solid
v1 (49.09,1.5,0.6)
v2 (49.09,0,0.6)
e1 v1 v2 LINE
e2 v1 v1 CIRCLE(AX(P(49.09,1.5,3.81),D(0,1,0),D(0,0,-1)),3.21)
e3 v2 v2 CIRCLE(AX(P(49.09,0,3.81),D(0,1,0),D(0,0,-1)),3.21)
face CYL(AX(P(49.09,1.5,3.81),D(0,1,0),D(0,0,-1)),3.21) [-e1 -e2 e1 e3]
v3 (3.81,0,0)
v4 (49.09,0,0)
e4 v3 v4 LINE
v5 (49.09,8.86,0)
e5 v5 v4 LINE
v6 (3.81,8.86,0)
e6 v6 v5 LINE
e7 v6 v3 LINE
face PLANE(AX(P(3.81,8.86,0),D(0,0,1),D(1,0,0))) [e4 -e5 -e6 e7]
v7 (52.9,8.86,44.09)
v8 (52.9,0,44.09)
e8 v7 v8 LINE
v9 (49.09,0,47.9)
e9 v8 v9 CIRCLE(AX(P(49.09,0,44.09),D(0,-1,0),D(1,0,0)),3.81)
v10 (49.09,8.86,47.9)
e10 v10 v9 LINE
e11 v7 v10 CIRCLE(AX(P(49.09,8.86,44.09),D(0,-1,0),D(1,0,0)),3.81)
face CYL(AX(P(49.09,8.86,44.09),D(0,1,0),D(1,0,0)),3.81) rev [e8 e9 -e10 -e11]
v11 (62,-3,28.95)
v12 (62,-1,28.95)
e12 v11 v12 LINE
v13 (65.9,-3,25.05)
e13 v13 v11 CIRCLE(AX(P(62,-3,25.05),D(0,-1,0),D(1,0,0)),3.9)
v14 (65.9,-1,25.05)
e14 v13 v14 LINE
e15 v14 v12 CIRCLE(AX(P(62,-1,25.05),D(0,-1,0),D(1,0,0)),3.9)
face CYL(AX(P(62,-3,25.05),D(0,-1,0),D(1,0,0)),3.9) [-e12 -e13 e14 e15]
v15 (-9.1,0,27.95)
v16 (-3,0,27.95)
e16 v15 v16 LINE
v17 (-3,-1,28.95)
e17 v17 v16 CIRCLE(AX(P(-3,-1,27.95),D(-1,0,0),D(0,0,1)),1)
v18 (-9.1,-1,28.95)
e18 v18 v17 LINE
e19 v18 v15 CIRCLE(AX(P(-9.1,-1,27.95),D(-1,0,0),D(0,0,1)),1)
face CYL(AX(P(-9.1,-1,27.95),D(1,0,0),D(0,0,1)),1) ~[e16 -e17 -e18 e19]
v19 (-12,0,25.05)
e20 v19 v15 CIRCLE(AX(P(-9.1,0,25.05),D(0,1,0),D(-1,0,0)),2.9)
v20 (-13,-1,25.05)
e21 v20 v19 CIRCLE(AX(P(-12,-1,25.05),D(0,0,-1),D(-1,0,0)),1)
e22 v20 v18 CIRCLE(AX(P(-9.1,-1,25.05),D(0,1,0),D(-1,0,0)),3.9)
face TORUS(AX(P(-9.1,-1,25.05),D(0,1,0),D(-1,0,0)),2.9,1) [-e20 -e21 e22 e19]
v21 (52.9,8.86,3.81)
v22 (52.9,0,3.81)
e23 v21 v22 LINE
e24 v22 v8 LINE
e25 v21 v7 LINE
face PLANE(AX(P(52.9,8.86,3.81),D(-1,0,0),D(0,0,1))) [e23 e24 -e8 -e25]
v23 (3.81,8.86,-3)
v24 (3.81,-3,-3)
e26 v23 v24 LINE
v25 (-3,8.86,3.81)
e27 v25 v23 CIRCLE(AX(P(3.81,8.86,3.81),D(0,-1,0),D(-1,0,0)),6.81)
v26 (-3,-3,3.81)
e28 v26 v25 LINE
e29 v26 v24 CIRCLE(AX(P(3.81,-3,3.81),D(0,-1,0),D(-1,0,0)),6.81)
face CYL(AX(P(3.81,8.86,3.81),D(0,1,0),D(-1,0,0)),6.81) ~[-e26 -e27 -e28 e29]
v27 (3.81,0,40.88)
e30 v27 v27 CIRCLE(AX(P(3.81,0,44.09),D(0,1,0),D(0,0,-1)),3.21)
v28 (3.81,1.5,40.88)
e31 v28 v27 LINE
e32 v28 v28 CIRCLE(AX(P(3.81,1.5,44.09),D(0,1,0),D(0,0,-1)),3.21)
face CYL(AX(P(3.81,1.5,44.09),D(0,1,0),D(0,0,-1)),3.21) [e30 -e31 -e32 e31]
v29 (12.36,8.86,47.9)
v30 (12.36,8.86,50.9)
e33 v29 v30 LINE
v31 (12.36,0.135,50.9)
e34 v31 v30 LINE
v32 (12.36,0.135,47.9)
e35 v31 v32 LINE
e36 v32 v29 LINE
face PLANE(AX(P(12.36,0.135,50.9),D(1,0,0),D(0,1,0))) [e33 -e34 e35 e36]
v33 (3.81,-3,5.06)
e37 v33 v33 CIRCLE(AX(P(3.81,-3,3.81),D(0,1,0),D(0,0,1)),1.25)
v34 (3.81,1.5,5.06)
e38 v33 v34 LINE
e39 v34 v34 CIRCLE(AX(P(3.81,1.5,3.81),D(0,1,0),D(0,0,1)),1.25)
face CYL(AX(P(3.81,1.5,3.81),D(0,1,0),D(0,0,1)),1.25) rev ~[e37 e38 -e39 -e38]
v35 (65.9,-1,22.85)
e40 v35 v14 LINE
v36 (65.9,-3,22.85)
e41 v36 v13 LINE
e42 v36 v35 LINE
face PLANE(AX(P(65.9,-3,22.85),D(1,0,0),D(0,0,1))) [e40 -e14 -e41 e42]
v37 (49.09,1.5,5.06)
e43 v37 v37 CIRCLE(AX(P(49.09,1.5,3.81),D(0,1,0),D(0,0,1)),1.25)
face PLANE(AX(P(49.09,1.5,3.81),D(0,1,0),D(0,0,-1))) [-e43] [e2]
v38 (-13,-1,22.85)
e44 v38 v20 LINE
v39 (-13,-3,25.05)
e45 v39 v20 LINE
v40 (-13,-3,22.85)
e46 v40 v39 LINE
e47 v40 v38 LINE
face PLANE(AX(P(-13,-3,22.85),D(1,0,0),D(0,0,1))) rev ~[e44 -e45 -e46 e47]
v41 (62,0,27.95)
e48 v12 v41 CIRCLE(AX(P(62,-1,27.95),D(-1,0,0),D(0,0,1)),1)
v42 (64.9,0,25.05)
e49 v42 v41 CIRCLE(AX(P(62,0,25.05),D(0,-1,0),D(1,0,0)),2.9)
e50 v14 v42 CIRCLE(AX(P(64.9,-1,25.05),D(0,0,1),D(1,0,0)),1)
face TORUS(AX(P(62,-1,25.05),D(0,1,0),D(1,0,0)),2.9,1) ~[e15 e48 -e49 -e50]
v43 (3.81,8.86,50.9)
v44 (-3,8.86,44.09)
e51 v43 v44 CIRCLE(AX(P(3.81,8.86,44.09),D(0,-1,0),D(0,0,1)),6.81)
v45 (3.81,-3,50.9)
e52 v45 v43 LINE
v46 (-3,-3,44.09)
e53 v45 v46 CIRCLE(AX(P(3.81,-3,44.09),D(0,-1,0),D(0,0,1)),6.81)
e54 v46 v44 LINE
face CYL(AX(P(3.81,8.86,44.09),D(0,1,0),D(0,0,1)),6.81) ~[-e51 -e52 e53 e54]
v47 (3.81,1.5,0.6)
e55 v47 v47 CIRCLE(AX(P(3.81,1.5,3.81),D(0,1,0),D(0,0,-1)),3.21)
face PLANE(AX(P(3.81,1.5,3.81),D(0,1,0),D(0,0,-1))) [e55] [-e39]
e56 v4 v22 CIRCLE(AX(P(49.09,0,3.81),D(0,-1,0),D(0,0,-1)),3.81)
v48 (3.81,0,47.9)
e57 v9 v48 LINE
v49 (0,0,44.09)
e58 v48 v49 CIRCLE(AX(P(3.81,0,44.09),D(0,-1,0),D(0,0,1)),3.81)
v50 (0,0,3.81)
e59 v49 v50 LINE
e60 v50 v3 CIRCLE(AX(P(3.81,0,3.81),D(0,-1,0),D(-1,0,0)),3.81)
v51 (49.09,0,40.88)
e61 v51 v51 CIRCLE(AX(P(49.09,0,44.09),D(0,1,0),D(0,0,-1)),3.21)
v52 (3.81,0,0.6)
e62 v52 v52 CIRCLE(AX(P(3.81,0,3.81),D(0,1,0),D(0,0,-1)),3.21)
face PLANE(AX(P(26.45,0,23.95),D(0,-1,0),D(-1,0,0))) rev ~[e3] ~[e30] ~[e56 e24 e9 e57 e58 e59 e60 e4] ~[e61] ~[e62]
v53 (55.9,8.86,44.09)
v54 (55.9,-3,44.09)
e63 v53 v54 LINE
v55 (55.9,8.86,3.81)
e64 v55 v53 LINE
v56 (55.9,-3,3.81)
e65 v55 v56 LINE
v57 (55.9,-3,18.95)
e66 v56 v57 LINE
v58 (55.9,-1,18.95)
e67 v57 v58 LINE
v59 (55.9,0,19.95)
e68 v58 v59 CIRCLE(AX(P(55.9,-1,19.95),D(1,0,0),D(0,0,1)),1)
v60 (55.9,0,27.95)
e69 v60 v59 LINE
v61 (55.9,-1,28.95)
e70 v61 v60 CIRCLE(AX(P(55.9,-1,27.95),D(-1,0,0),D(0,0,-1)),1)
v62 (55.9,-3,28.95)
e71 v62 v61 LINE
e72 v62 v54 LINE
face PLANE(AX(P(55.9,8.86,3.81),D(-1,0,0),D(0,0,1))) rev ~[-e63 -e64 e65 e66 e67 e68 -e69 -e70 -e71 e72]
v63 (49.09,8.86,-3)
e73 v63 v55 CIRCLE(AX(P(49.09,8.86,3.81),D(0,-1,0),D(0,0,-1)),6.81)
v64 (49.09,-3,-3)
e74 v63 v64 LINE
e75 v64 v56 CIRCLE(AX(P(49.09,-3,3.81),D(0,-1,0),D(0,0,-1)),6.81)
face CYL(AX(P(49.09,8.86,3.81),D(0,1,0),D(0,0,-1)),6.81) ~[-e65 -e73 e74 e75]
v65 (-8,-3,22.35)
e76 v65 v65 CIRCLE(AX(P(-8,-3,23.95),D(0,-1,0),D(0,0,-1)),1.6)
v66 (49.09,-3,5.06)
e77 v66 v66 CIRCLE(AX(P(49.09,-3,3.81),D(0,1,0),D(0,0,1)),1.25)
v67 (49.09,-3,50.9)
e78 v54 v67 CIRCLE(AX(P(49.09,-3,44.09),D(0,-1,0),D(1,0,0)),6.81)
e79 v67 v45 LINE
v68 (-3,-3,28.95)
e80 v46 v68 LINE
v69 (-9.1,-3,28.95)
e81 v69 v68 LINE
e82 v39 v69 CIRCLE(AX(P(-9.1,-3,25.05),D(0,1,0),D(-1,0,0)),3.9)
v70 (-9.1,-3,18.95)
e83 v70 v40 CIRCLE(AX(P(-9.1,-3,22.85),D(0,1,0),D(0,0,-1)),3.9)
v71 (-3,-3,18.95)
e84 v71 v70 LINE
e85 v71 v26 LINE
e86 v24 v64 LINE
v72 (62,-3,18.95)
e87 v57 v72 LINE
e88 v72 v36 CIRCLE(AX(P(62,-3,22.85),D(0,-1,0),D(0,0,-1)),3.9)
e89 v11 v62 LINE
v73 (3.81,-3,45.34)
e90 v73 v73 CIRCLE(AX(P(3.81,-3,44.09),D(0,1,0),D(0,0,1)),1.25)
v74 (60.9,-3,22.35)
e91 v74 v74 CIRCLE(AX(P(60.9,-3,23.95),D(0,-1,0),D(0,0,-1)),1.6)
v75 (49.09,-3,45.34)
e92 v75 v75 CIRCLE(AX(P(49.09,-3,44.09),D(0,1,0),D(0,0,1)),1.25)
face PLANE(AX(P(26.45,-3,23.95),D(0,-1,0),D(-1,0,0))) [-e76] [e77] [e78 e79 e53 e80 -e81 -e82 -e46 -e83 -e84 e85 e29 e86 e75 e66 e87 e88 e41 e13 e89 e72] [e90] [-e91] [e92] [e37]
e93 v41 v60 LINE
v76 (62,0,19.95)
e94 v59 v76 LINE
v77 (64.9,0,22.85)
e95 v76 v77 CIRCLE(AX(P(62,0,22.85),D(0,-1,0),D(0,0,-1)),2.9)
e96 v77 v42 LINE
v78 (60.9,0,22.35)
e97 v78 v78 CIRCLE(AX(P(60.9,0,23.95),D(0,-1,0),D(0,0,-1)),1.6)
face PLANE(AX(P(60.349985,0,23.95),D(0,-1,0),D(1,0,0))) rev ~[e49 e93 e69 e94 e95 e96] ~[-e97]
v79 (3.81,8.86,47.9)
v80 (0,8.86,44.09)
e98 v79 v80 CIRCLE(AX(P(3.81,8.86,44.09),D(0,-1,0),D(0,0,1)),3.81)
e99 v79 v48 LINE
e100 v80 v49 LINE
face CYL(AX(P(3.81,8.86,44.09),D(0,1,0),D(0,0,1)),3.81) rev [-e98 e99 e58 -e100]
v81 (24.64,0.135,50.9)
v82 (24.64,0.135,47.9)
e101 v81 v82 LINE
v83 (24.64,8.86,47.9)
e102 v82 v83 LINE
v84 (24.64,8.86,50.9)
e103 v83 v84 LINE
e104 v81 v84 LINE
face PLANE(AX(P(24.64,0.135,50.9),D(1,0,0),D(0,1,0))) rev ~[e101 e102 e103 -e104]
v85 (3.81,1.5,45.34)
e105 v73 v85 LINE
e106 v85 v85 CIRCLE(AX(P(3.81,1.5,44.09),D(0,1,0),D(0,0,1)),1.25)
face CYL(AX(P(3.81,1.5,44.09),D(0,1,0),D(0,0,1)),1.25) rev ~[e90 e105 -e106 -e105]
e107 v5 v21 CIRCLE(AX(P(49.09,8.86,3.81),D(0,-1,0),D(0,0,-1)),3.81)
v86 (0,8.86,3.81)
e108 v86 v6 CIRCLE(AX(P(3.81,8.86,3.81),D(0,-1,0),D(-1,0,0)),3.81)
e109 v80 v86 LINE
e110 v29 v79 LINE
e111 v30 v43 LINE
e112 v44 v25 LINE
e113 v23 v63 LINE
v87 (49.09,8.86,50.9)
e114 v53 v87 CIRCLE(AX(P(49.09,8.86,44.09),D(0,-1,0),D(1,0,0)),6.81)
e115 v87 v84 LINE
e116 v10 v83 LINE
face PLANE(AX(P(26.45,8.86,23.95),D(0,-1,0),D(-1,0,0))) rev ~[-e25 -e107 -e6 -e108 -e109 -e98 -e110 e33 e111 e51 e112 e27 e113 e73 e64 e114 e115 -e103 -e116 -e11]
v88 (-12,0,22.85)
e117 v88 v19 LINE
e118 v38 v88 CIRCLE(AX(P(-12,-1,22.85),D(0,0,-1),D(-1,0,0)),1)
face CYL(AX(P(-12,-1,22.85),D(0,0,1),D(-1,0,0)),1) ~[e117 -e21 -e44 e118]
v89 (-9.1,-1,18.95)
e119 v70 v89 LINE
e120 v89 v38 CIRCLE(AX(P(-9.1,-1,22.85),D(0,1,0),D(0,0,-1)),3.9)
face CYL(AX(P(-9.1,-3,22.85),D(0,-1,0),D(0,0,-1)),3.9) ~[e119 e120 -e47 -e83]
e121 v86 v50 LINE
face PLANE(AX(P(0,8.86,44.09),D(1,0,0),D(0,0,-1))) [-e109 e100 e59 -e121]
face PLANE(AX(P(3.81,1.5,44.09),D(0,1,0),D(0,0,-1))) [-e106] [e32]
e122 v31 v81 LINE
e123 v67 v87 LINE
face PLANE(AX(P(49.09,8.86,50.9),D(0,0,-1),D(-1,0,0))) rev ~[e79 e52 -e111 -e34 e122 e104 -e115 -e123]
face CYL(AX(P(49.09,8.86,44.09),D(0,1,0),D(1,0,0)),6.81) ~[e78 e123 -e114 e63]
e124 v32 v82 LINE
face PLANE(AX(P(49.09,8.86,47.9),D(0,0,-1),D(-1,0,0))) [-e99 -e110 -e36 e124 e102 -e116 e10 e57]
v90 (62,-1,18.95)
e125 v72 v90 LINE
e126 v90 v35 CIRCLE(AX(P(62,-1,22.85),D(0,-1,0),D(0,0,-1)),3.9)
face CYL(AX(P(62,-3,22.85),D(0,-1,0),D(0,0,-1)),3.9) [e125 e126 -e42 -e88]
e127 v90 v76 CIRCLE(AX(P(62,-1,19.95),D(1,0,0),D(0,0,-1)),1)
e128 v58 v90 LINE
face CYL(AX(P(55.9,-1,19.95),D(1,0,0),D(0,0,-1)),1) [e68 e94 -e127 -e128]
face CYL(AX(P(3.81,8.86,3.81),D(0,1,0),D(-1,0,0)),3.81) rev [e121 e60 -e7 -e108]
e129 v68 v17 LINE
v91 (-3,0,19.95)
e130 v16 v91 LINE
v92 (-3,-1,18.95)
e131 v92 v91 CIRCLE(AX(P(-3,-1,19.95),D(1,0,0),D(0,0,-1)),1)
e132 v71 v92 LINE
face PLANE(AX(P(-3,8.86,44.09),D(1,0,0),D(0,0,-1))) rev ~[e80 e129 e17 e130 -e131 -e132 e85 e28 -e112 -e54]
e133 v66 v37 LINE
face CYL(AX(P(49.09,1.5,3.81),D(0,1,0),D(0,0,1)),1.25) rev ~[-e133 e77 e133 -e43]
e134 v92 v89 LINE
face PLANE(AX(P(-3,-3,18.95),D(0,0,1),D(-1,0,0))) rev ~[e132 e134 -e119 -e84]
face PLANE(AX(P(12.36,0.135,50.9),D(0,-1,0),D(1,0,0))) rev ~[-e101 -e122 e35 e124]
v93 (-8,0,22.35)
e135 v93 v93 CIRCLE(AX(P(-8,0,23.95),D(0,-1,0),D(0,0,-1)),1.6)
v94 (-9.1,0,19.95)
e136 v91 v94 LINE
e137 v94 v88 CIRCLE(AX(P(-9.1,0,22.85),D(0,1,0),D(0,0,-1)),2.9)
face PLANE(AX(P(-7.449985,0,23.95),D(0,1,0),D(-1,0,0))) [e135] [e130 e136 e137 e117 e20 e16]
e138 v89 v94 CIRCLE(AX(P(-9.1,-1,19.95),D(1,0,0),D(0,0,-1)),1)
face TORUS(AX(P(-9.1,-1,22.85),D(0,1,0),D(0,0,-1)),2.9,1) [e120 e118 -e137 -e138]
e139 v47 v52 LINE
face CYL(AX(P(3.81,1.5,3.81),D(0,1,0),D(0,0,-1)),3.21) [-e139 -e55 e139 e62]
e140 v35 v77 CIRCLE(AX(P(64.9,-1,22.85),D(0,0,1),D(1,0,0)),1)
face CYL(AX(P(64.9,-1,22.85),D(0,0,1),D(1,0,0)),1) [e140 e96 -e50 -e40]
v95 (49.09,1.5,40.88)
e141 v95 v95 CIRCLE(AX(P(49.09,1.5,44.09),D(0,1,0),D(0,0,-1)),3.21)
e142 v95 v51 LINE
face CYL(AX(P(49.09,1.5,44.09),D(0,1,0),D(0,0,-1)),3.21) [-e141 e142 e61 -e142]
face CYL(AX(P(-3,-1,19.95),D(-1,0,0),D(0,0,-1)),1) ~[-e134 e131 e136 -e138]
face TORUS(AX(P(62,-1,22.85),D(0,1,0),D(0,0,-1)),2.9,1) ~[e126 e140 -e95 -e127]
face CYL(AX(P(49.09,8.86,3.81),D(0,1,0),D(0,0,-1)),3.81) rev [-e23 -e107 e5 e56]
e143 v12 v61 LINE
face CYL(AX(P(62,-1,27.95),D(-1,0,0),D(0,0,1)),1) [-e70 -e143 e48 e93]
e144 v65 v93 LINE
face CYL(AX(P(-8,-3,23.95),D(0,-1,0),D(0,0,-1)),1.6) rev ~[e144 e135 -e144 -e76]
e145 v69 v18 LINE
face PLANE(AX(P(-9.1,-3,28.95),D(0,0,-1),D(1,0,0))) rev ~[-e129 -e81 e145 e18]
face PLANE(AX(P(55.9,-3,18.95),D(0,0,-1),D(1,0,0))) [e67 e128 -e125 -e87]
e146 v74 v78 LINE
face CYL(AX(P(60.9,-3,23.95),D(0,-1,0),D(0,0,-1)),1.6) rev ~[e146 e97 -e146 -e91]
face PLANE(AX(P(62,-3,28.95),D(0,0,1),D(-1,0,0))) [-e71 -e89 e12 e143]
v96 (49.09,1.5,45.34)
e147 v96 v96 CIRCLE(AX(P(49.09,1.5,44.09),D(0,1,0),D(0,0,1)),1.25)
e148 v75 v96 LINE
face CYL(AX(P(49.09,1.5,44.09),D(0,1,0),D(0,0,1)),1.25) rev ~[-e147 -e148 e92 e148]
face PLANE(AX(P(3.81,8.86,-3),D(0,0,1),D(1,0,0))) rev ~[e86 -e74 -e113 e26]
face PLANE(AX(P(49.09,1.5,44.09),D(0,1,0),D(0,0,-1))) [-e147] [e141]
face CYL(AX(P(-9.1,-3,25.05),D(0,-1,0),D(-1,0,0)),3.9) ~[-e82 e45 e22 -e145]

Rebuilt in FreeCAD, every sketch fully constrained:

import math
import FreeCAD as App
import Part
import Sketcher

V = App.Vector
Q = App.Units.Quantity


def edges_at(feature, points):
    """Names of the edges that pass closest to the given points."""
    edges = feature.Shape.Edges
    near = lambda p: min(range(len(edges)), key=lambda i: edges[i].distToShape(Part.Vertex(*p))[0])
    return sorted({f"Edge{near(p) + 1}" for p in points})


def add_polygon(sketch, points):
    """Adds a closed chain of lines whose ends are joined by coincident constraints."""
    first, n = sketch.GeometryCount, len(points)
    for a, b in zip(points, points[1:] + points[:1]):
        sketch.addGeometry(Part.LineSegment(App.Vector(*a, 0), App.Vector(*b, 0)), False)
    for i in range(n):
        sketch.addConstraint(Sketcher.Constraint("Coincident", first + i, 2, first + (i + 1) % n, 1))

doc = App.newDocument("Part")
params = doc.addObject("Spreadsheet::Sheet", "Params")
for row, (alias, value) in enumerate([
    ("sketch1_radius", "6.81 mm"),
    ("sketch1_width", "45.28 mm"),
    ("sketch1_height", "40.28 mm"),
    ("pad1_length", "3 mm"),
    ("sketch2_diameter", "2.5 mm"),
    ("sketch3_diameter", "2.5 mm"),
    ("sketch4_diameter", "2.5 mm"),
    ("sketch5_diameter", "2.5 mm"),
    ("sketch6_radius", "6.81 mm"),
    ("sketch6_radius2", "3.81 mm"),
    ("sketch6_width", "45.28 mm"),
    ("sketch6_height", "40.28 mm"),
    ("pad2_length", "8.86 mm"),
    ("sketch7_diameter", "2.5 mm"),
    ("sketch7_diameter2", "6.42 mm"),
    ("pad3_length", "1.5 mm"),
    ("sketch8_width", "12.28 mm"),
    ("sketch8_height", "8.73 mm"),
    ("pocket5_length", "3 mm"),
    ("sketch9_diameter", "3.2 mm"),
    ("sketch9_radius", "3.9 mm"),
    ("sketch9_height", "10 mm"),
    ("sketch9_width", "6.1 mm"),
    ("pad4_length", "3 mm"),
    ("fillet_radius", "1 mm"),
    ("fillet2_radius", "1 mm"),
], start=1):
    params.set(f"A{row}", alias)
    params.set(f"B{row}", "=" + value)
    params.setAlias(f"B{row}", alias)

body = doc.addObject("PartDesign::Body", "Body")

# Sketch on XZ plane
sketch1 = doc.addObject("Sketcher::SketchObject", "Sketch")
body.addObject(sketch1)
sketch1.AttachmentSupport = (doc.XZ_Plane, [""])
sketch1.MapMode = "FlatFace"
sketch1.addGeometry(Part.LineSegment(V(49.09, -3, 0), V(3.81, -3, 0)), False)
sketch1.addGeometry(Part.ArcOfCircle(Part.Circle(V(3.81, 3.81, 0), V(0, 0, 1), 6.81), math.radians(180), math.radians(270)), False)
sketch1.addGeometry(Part.LineSegment(V(-3, 3.81, 0), V(-3, 44.09, 0)), False)
sketch1.addGeometry(Part.ArcOfCircle(Part.Circle(V(3.81, 44.09, 0), V(0, 0, 1), 6.81), math.radians(90), math.radians(180)), False)
sketch1.addGeometry(Part.LineSegment(V(3.81, 50.9, 0), V(49.09, 50.9, 0)), False)
sketch1.addGeometry(Part.ArcOfCircle(Part.Circle(V(49.09, 44.09, 0), V(0, 0, 1), 6.81), math.radians(0), math.radians(90)), False)
sketch1.addGeometry(Part.LineSegment(V(55.9, 44.09, 0), V(55.9, 3.81, 0)), False)
sketch1.addGeometry(Part.ArcOfCircle(Part.Circle(V(49.09, 3.81, 0), V(0, 0, 1), 6.81), math.radians(-90), math.radians(0)), False)
sketch1.addConstraint(Sketcher.Constraint("Tangent", 0, 2, 1, 2))
sketch1.addConstraint(Sketcher.Constraint("Tangent", 1, 1, 2, 1))
sketch1.addConstraint(Sketcher.Constraint("Tangent", 2, 2, 3, 2))
sketch1.addConstraint(Sketcher.Constraint("Tangent", 3, 1, 4, 1))
sketch1.addConstraint(Sketcher.Constraint("Tangent", 4, 2, 5, 2))
sketch1.addConstraint(Sketcher.Constraint("Tangent", 5, 1, 6, 1))
sketch1.addConstraint(Sketcher.Constraint("Tangent", 6, 2, 7, 2))
sketch1.addConstraint(Sketcher.Constraint("Tangent", 7, 1, 0, 1))
sketch1.addConstraint(Sketcher.Constraint("Horizontal", 0))
sketch1.addConstraint(Sketcher.Constraint("Vertical", 2))
sketch1.addConstraint(Sketcher.Constraint("Horizontal", 4))
sketch1.addConstraint(Sketcher.Constraint("Vertical", 6))
sketch1.addConstraint(Sketcher.Constraint("Equal", 1, 3))
sketch1.addConstraint(Sketcher.Constraint("Equal", 3, 5))
sketch1.addConstraint(Sketcher.Constraint("Equal", 5, 7))
sketch1.addConstraint(Sketcher.Constraint("Radius", 1, Q("6.81 mm")))
sketch1.addConstraint(Sketcher.Constraint("DistanceY", 0, 2, -1, 1, Q("3 mm")))
sketch1.addConstraint(Sketcher.Constraint("DistanceX", 1, 1, -1, 1, Q("3 mm")))
sketch1.addConstraint(Sketcher.Constraint("DistanceX", 0, 2, 0, 1, Q("45.28 mm")))
sketch1.addConstraint(Sketcher.Constraint("DistanceY", 2, 1, 2, 2, Q("40.28 mm")))
sketch1.setExpression("Constraints[15]", "Params.sketch1_radius")
sketch1.setExpression("Constraints[18]", "Params.sketch1_width")
sketch1.setExpression("Constraints[19]", "Params.sketch1_height")
pad1 = doc.addObject("PartDesign::Pad", "Pad")
body.addObject(pad1)
pad1.Profile = sketch1
pad1.setExpression("Length", "Params.pad1_length")

# Sketch on XZ plane
sketch2 = doc.addObject("Sketcher::SketchObject", "Sketch001")
body.addObject(sketch2)
sketch2.AttachmentSupport = (doc.XZ_Plane, [""])
sketch2.MapMode = "FlatFace"
sketch2.addGeometry(Part.Circle(V(3.81, 3.81, 0), V(0, 0, 1), 1.25), False)
sketch2.addConstraint(Sketcher.Constraint("Diameter", 0, Q("2.5 mm")))
sketch2.addConstraint(Sketcher.Constraint("DistanceX", -1, 1, 0, 3, Q("3.81 mm")))
sketch2.addConstraint(Sketcher.Constraint("DistanceY", -1, 1, 0, 3, Q("3.81 mm")))
sketch2.setExpression("Constraints[0]", "Params.sketch2_diameter")
pocket1 = doc.addObject("PartDesign::Pocket", "Pocket")
body.addObject(pocket1)
pocket1.Profile = sketch2
pocket1.Type = "UpToFirst"
pocket1.Reversed = True

# Sketch on XZ plane
sketch3 = doc.addObject("Sketcher::SketchObject", "Sketch002")
body.addObject(sketch3)
sketch3.AttachmentSupport = (doc.XZ_Plane, [""])
sketch3.MapMode = "FlatFace"
sketch3.addGeometry(Part.Circle(V(3.81, 44.09, 0), V(0, 0, 1), 1.25), False)
sketch3.addConstraint(Sketcher.Constraint("Diameter", 0, Q("2.5 mm")))
sketch3.addConstraint(Sketcher.Constraint("DistanceX", -1, 1, 0, 3, Q("3.81 mm")))
sketch3.addConstraint(Sketcher.Constraint("DistanceY", -1, 1, 0, 3, Q("44.09 mm")))
sketch3.setExpression("Constraints[0]", "Params.sketch3_diameter")
pocket2 = doc.addObject("PartDesign::Pocket", "Pocket001")
body.addObject(pocket2)
pocket2.Profile = sketch3
pocket2.Type = "UpToFirst"
pocket2.Reversed = True

# Sketch on XZ plane
sketch4 = doc.addObject("Sketcher::SketchObject", "Sketch003")
body.addObject(sketch4)
sketch4.AttachmentSupport = (doc.XZ_Plane, [""])
sketch4.MapMode = "FlatFace"
sketch4.addGeometry(Part.Circle(V(49.09, 44.09, 0), V(0, 0, 1), 1.25), False)
sketch4.addConstraint(Sketcher.Constraint("Diameter", 0, Q("2.5 mm")))
sketch4.addConstraint(Sketcher.Constraint("DistanceX", -1, 1, 0, 3, Q("49.09 mm")))
sketch4.addConstraint(Sketcher.Constraint("DistanceY", -1, 1, 0, 3, Q("44.09 mm")))
sketch4.setExpression("Constraints[0]", "Params.sketch4_diameter")
pocket3 = doc.addObject("PartDesign::Pocket", "Pocket002")
body.addObject(pocket3)
pocket3.Profile = sketch4
pocket3.Type = "UpToFirst"
pocket3.Reversed = True

# Sketch on XZ plane
sketch5 = doc.addObject("Sketcher::SketchObject", "Sketch004")
body.addObject(sketch5)
sketch5.AttachmentSupport = (doc.XZ_Plane, [""])
sketch5.MapMode = "FlatFace"
sketch5.addGeometry(Part.Circle(V(49.09, 3.81, 0), V(0, 0, 1), 1.25), False)
sketch5.addConstraint(Sketcher.Constraint("Diameter", 0, Q("2.5 mm")))
sketch5.addConstraint(Sketcher.Constraint("DistanceX", -1, 1, 0, 3, Q("49.09 mm")))
sketch5.addConstraint(Sketcher.Constraint("DistanceY", -1, 1, 0, 3, Q("3.81 mm")))
sketch5.setExpression("Constraints[0]", "Params.sketch5_diameter")
pocket4 = doc.addObject("PartDesign::Pocket", "Pocket003")
body.addObject(pocket4)
pocket4.Profile = sketch5
pocket4.Type = "UpToFirst"
pocket4.Reversed = True

# Sketch on XZ plane
sketch6 = doc.addObject("Sketcher::SketchObject", "Sketch005")
body.addObject(sketch6)
sketch6.AttachmentSupport = (doc.XZ_Plane, [""])
sketch6.MapMode = "FlatFace"
sketch6.AttachmentOffset = App.Placement(V(0, 0, -8.86), App.Rotation())
sketch6.addGeometry(Part.ArcOfCircle(Part.Circle(V(3.81, 3.81, 0), V(0, 0, 1), 6.81), math.radians(180), math.radians(270)), False)
sketch6.addGeometry(Part.LineSegment(V(-3, 3.81, 0), V(-3, 44.09, 0)), False)
sketch6.addGeometry(Part.ArcOfCircle(Part.Circle(V(3.81, 44.09, 0), V(0, 0, 1), 6.81), math.radians(90), math.radians(180)), False)
sketch6.addGeometry(Part.LineSegment(V(3.81, 50.9, 0), V(49.09, 50.9, 0)), False)
sketch6.addGeometry(Part.ArcOfCircle(Part.Circle(V(49.09, 44.09, 0), V(0, 0, 1), 6.81), math.radians(0), math.radians(90)), False)
sketch6.addGeometry(Part.LineSegment(V(55.9, 44.09, 0), V(55.9, 3.81, 0)), False)
sketch6.addGeometry(Part.ArcOfCircle(Part.Circle(V(49.09, 3.81, 0), V(0, 0, 1), 6.81), math.radians(-90), math.radians(0)), False)
sketch6.addGeometry(Part.LineSegment(V(49.09, -3, 0), V(3.81, -3, 0)), False)
sketch6.addGeometry(Part.LineSegment(V(52.9, 3.81, 0), V(52.9, 44.09, 0)), False)
sketch6.addGeometry(Part.ArcOfCircle(Part.Circle(V(49.09, 44.09, 0), V(0, 0, 1), 3.81), math.radians(0), math.radians(90)), False)
sketch6.addGeometry(Part.LineSegment(V(49.09, 47.9, 0), V(3.81, 47.9, 0)), False)
sketch6.addGeometry(Part.ArcOfCircle(Part.Circle(V(3.81, 44.09, 0), V(0, 0, 1), 3.81), math.radians(90), math.radians(180)), False)
sketch6.addGeometry(Part.LineSegment(V(0, 44.09, 0), V(0, 3.81, 0)), False)
sketch6.addGeometry(Part.ArcOfCircle(Part.Circle(V(3.81, 3.81, 0), V(0, 0, 1), 3.81), math.radians(-180), math.radians(-90)), False)
sketch6.addGeometry(Part.LineSegment(V(3.81, 0, 0), V(49.09, 0, 0)), False)
sketch6.addGeometry(Part.ArcOfCircle(Part.Circle(V(49.09, 3.81, 0), V(0, 0, 1), 3.81), math.radians(-90), math.radians(0)), False)
sketch6.addConstraint(Sketcher.Constraint("Tangent", 0, 1, 1, 1))
sketch6.addConstraint(Sketcher.Constraint("Tangent", 1, 2, 2, 2))
sketch6.addConstraint(Sketcher.Constraint("Tangent", 2, 1, 3, 1))
sketch6.addConstraint(Sketcher.Constraint("Tangent", 3, 2, 4, 2))
sketch6.addConstraint(Sketcher.Constraint("Tangent", 4, 1, 5, 1))
sketch6.addConstraint(Sketcher.Constraint("Tangent", 5, 2, 6, 2))
sketch6.addConstraint(Sketcher.Constraint("Tangent", 6, 1, 7, 1))
sketch6.addConstraint(Sketcher.Constraint("Tangent", 7, 2, 0, 2))
sketch6.addConstraint(Sketcher.Constraint("Tangent", 8, 2, 9, 1))
sketch6.addConstraint(Sketcher.Constraint("Tangent", 9, 2, 10, 1))
sketch6.addConstraint(Sketcher.Constraint("Tangent", 10, 2, 11, 1))
sketch6.addConstraint(Sketcher.Constraint("Tangent", 11, 2, 12, 1))
sketch6.addConstraint(Sketcher.Constraint("Tangent", 12, 2, 13, 1))
sketch6.addConstraint(Sketcher.Constraint("Tangent", 13, 2, 14, 1))
sketch6.addConstraint(Sketcher.Constraint("Tangent", 14, 2, 15, 1))
sketch6.addConstraint(Sketcher.Constraint("Tangent", 15, 2, 8, 1))
sketch6.addConstraint(Sketcher.Constraint("Vertical", 1))
sketch6.addConstraint(Sketcher.Constraint("Horizontal", 3))
sketch6.addConstraint(Sketcher.Constraint("Vertical", 5))
sketch6.addConstraint(Sketcher.Constraint("Horizontal", 7))
sketch6.addConstraint(Sketcher.Constraint("Vertical", 8))
sketch6.addConstraint(Sketcher.Constraint("Horizontal", 10))
sketch6.addConstraint(Sketcher.Constraint("Vertical", 12))
sketch6.addConstraint(Sketcher.Constraint("Horizontal", 14))
sketch6.addConstraint(Sketcher.Constraint("Coincident", 9, 3, 4, 3))
sketch6.addConstraint(Sketcher.Constraint("Coincident", 11, 3, 2, 3))
sketch6.addConstraint(Sketcher.Constraint("Coincident", 13, 3, 0, 3))
sketch6.addConstraint(Sketcher.Constraint("Equal", 0, 2))
sketch6.addConstraint(Sketcher.Constraint("Equal", 2, 4))
sketch6.addConstraint(Sketcher.Constraint("Equal", 4, 6))
sketch6.addConstraint(Sketcher.Constraint("Equal", 13, 15))
sketch6.addConstraint(Sketcher.Constraint("PointOnObject", 11, 2, -2))
sketch6.addConstraint(Sketcher.Constraint("PointOnObject", 13, 2, -1))
sketch6.addConstraint(Sketcher.Constraint("Radius", 0, Q("6.81 mm")))
sketch6.addConstraint(Sketcher.Constraint("Radius", 9, Q("3.81 mm")))
sketch6.addConstraint(Sketcher.Constraint("DistanceX", 3, 1, 3, 2, Q("45.28 mm")))
sketch6.addConstraint(Sketcher.Constraint("DistanceY", 1, 1, 1, 2, Q("40.28 mm")))
sketch6.setExpression("Constraints[33]", "Params.sketch6_radius")
sketch6.setExpression("Constraints[34]", "Params.sketch6_radius2")
sketch6.setExpression("Constraints[35]", "Params.sketch6_width")
sketch6.setExpression("Constraints[36]", "Params.sketch6_height")
pad2 = doc.addObject("PartDesign::Pad", "Pad001")
body.addObject(pad2)
pad2.Profile = sketch6
pad2.setExpression("Length", "Params.pad2_length")

# Sketch on XZ plane
sketch7 = doc.addObject("Sketcher::SketchObject", "Sketch006")
body.addObject(sketch7)
sketch7.AttachmentSupport = (doc.XZ_Plane, [""])
sketch7.MapMode = "FlatFace"
sketch7.AttachmentOffset = App.Placement(V(0, 0, -1.5), App.Rotation())
sketch7.addGeometry(Part.Circle(V(49.09, 3.81, 0), V(0, 0, 1), 3.21), False)
sketch7.addGeometry(Part.Circle(V(49.09, 3.81, 0), V(0, 0, 1), 1.25), False)
sketch7.addGeometry(Part.Circle(V(49.09, 44.09, 0), V(0, 0, 1), 3.21), False)
sketch7.addGeometry(Part.Circle(V(49.09, 44.09, 0), V(0, 0, 1), 1.25), False)
sketch7.addGeometry(Part.Circle(V(3.81, 44.09, 0), V(0, 0, 1), 3.21), False)
sketch7.addGeometry(Part.Circle(V(3.81, 44.09, 0), V(0, 0, 1), 1.25), False)
sketch7.addGeometry(Part.Circle(V(3.81, 3.81, 0), V(0, 0, 1), 3.21), False)
sketch7.addGeometry(Part.Circle(V(3.81, 3.81, 0), V(0, 0, 1), 1.25), False)
sketch7.addConstraint(Sketcher.Constraint("Coincident", 1, 3, 0, 3))
sketch7.addConstraint(Sketcher.Constraint("Coincident", 3, 3, 2, 3))
sketch7.addConstraint(Sketcher.Constraint("Coincident", 5, 3, 4, 3))
sketch7.addConstraint(Sketcher.Constraint("Coincident", 7, 3, 6, 3))
sketch7.addConstraint(Sketcher.Constraint("Equal", 0, 2))
sketch7.addConstraint(Sketcher.Constraint("Equal", 1, 3))
sketch7.addConstraint(Sketcher.Constraint("Equal", 2, 4))
sketch7.addConstraint(Sketcher.Constraint("Equal", 3, 5))
sketch7.addConstraint(Sketcher.Constraint("Equal", 4, 6))
sketch7.addConstraint(Sketcher.Constraint("Equal", 5, 7))
sketch7.addConstraint(Sketcher.Constraint("Horizontal", 3, 3, 4, 3))
sketch7.addConstraint(Sketcher.Constraint("Horizontal", 1, 3, 6, 3))
sketch7.addConstraint(Sketcher.Constraint("Vertical", 1, 3, 2, 3))
sketch7.addConstraint(Sketcher.Constraint("Vertical", 5, 3, 6, 3))
sketch7.addConstraint(Sketcher.Constraint("Diameter", 1, Q("2.5 mm")))
sketch7.addConstraint(Sketcher.Constraint("Diameter", 0, Q("6.42 mm")))
sketch7.addConstraint(Sketcher.Constraint("DistanceX", -1, 1, 0, 3, Q("49.09 mm")))
sketch7.addConstraint(Sketcher.Constraint("DistanceY", -1, 1, 0, 3, Q("3.81 mm")))
sketch7.addConstraint(Sketcher.Constraint("DistanceY", -1, 1, 2, 3, Q("44.09 mm")))
sketch7.addConstraint(Sketcher.Constraint("DistanceX", -1, 1, 4, 3, Q("3.81 mm")))
sketch7.setExpression("Constraints[14]", "Params.sketch7_diameter")
sketch7.setExpression("Constraints[15]", "Params.sketch7_diameter2")
pad3 = doc.addObject("PartDesign::Pad", "Pad002")
body.addObject(pad3)
pad3.Profile = sketch7
pad3.setExpression("Length", "Params.pad3_length")

# Sketch on XY plane
sketch8 = doc.addObject("Sketcher::SketchObject", "Sketch007")
body.addObject(sketch8)
sketch8.AttachmentSupport = (doc.XY_Plane, [""])
sketch8.MapMode = "FlatFace"
sketch8.AttachmentOffset = App.Placement(V(0, 0, 50.9), App.Rotation())
add_polygon(sketch8, [(12.36, 8.865), (12.36, 0.135), (24.64, 0.135), (24.64, 8.865)])  # lines 0-3
sketch8.addConstraint(Sketcher.Constraint("Vertical", 0))
sketch8.addConstraint(Sketcher.Constraint("Horizontal", 1))
sketch8.addConstraint(Sketcher.Constraint("Vertical", 2))
sketch8.addConstraint(Sketcher.Constraint("Horizontal", 3))
sketch8.addConstraint(Sketcher.Constraint("DistanceX", 1, 1, 1, 2, Q("12.28 mm")))
sketch8.addConstraint(Sketcher.Constraint("DistanceY", 0, 2, 0, 1, Q("8.73 mm")))
sketch8.addConstraint(Sketcher.Constraint("DistanceX", -1, 1, 0, 2, Q("12.36 mm")))
sketch8.addConstraint(Sketcher.Constraint("DistanceY", -1, 1, 0, 2, Q("0.135 mm")))
sketch8.setExpression("Constraints[8]", "Params.sketch8_width")
sketch8.setExpression("Constraints[9]", "Params.sketch8_height")
pocket5 = doc.addObject("PartDesign::Pocket", "Pocket004")
body.addObject(pocket5)
pocket5.Profile = sketch8
pocket5.setExpression("Length", "Params.pocket5_length")

# Sketch on XZ plane
sketch9 = doc.addObject("Sketcher::SketchObject", "Sketch008")
body.addObject(sketch9)
sketch9.AttachmentSupport = (doc.XZ_Plane, [""])
sketch9.MapMode = "FlatFace"
sketch9.AttachmentOffset = App.Placement(V(0, 0, 3), App.Rotation())
sketch9.addGeometry(Part.LineSegment(V(55.9, 18.95, 0), V(62, 18.95, 0)), False)
sketch9.addGeometry(Part.ArcOfCircle(Part.Circle(V(62, 22.85, 0), V(0, 0, 1), 3.9), math.radians(-90), math.radians(0)), False)
sketch9.addGeometry(Part.LineSegment(V(65.9, 22.85, 0), V(65.9, 25.05, 0)), False)
sketch9.addGeometry(Part.ArcOfCircle(Part.Circle(V(62, 25.05, 0), V(0, 0, 1), 3.9), math.radians(0), math.radians(90)), False)
sketch9.addGeometry(Part.LineSegment(V(62, 28.95, 0), V(55.9, 28.95, 0)), False)
sketch9.addGeometry(Part.LineSegment(V(55.9, 28.95, 0), V(55.9, 18.95, 0)), False)
sketch9.addGeometry(Part.Circle(V(60.9, 23.95, 0), V(0, 0, 1), 1.6), False)
sketch9.addGeometry(Part.LineSegment(V(-9.1, 18.95, 0), V(-3, 18.95, 0)), False)
sketch9.addGeometry(Part.LineSegment(V(-3, 18.95, 0), V(-3, 28.95, 0)), False)
sketch9.addGeometry(Part.LineSegment(V(-3, 28.95, 0), V(-9.1, 28.95, 0)), False)
sketch9.addGeometry(Part.ArcOfCircle(Part.Circle(V(-9.1, 25.05, 0), V(0, 0, 1), 3.9), math.radians(90), math.radians(180)), False)
sketch9.addGeometry(Part.LineSegment(V(-13, 25.05, 0), V(-13, 22.85, 0)), False)
sketch9.addGeometry(Part.ArcOfCircle(Part.Circle(V(-9.1, 22.85, 0), V(0, 0, 1), 3.9), math.radians(180), math.radians(270)), False)
sketch9.addGeometry(Part.Circle(V(-8, 23.95, 0), V(0, 0, 1), 1.6), False)
sketch9.addConstraint(Sketcher.Constraint("Tangent", 0, 2, 1, 1))
sketch9.addConstraint(Sketcher.Constraint("Tangent", 1, 2, 2, 1))
sketch9.addConstraint(Sketcher.Constraint("Tangent", 2, 2, 3, 1))
sketch9.addConstraint(Sketcher.Constraint("Tangent", 3, 2, 4, 1))
sketch9.addConstraint(Sketcher.Constraint("Coincident", 4, 2, 5, 1))
sketch9.addConstraint(Sketcher.Constraint("Coincident", 5, 2, 0, 1))
sketch9.addConstraint(Sketcher.Constraint("Coincident", 7, 2, 8, 1))
sketch9.addConstraint(Sketcher.Constraint("Coincident", 8, 2, 9, 1))
sketch9.addConstraint(Sketcher.Constraint("Tangent", 9, 2, 10, 1))
sketch9.addConstraint(Sketcher.Constraint("Tangent", 10, 2, 11, 1))
sketch9.addConstraint(Sketcher.Constraint("Tangent", 11, 2, 12, 1))
sketch9.addConstraint(Sketcher.Constraint("Tangent", 12, 2, 7, 1))
sketch9.addConstraint(Sketcher.Constraint("Horizontal", 0))
sketch9.addConstraint(Sketcher.Constraint("Vertical", 2))
sketch9.addConstraint(Sketcher.Constraint("Horizontal", 4))
sketch9.addConstraint(Sketcher.Constraint("Vertical", 5))
sketch9.addConstraint(Sketcher.Constraint("Horizontal", 7))
sketch9.addConstraint(Sketcher.Constraint("Vertical", 8))
sketch9.addConstraint(Sketcher.Constraint("Horizontal", 9))
sketch9.addConstraint(Sketcher.Constraint("Vertical", 11))
sketch9.addConstraint(Sketcher.Constraint("Equal", 1, 3))
sketch9.addConstraint(Sketcher.Constraint("Equal", 3, 10))
sketch9.addConstraint(Sketcher.Constraint("Equal", 10, 12))
sketch9.addConstraint(Sketcher.Constraint("Equal", 6, 13))
sketch9.addConstraint(Sketcher.Constraint("Horizontal", 3, 3, 10, 3))
sketch9.addConstraint(Sketcher.Constraint("Horizontal", 1, 3, 12, 3))
sketch9.addConstraint(Sketcher.Constraint("Horizontal", 6, 3, 13, 3))
sketch9.addConstraint(Sketcher.Constraint("Equal", 4, 7))
sketch9.addConstraint(Sketcher.Constraint("Diameter", 6, Q("3.2 mm")))
sketch9.addConstraint(Sketcher.Constraint("Radius", 1, Q("3.9 mm")))
sketch9.addConstraint(Sketcher.Constraint("DistanceY", 5, 2, 5, 1, Q("10 mm")))
sketch9.addConstraint(Sketcher.Constraint("DistanceX", 0, 1, 0, 2, Q("6.1 mm")))
sketch9.addConstraint(Sketcher.Constraint("DistanceX", -1, 1, 1, 3, Q("62 mm")))
sketch9.addConstraint(Sketcher.Constraint("DistanceX", 13, 3, -1, 1, Q("8 mm")))
sketch9.addConstraint(Sketcher.Constraint("DistanceX", 7, 2, -1, 1, Q("3 mm")))
sketch9.addConstraint(Sketcher.Constraint("DistanceX", 10, 3, 6, 3, Q("70 mm")))
sketch9.addConstraint(Sketcher.Constraint("DistanceY", 0, 2, 6, 3, Q("5 mm")))
sketch9.addConstraint(Sketcher.Constraint("DistanceY", -1, 1, 1, 3, Q("22.85 mm")))
sketch9.setExpression("Constraints[28]", "Params.sketch9_diameter")
sketch9.setExpression("Constraints[29]", "Params.sketch9_radius")
sketch9.setExpression("Constraints[30]", "Params.sketch9_height")
sketch9.setExpression("Constraints[31]", "Params.sketch9_width")
pad4 = doc.addObject("PartDesign::Pad", "Pad003")
body.addObject(pad4)
pad4.Profile = sketch9
pad4.setExpression("Length", "Params.pad4_length")
pad4.Reversed = True
doc.recompute()

fillet = doc.addObject("PartDesign::Fillet", "Fillet")
body.addObject(fillet)
fillet.Base = (pad4, edges_at(pad4, [
    (58.95, 0, 28.95),
    (64.758, 0, 27.808),
    (65.9, 0, 23.95),
    (64.758, 0, 20.092),
    (58.95, 0, 18.95),
]))
fillet.setExpression("Radius", "Params.fillet_radius")
doc.recompute()

fillet2 = doc.addObject("PartDesign::Fillet", "Fillet001")
body.addObject(fillet2)
fillet2.Base = (fillet, edges_at(fillet, [
    (-6.05, 0, 18.95),
    (-11.858, 0, 20.092),
    (-13, 0, 23.95),
    (-11.858, 0, 27.808),
    (-6.05, 0, 28.95),
]))
fillet2.setExpression("Radius", "Params.fillet2_radius")

doc.recompute()
